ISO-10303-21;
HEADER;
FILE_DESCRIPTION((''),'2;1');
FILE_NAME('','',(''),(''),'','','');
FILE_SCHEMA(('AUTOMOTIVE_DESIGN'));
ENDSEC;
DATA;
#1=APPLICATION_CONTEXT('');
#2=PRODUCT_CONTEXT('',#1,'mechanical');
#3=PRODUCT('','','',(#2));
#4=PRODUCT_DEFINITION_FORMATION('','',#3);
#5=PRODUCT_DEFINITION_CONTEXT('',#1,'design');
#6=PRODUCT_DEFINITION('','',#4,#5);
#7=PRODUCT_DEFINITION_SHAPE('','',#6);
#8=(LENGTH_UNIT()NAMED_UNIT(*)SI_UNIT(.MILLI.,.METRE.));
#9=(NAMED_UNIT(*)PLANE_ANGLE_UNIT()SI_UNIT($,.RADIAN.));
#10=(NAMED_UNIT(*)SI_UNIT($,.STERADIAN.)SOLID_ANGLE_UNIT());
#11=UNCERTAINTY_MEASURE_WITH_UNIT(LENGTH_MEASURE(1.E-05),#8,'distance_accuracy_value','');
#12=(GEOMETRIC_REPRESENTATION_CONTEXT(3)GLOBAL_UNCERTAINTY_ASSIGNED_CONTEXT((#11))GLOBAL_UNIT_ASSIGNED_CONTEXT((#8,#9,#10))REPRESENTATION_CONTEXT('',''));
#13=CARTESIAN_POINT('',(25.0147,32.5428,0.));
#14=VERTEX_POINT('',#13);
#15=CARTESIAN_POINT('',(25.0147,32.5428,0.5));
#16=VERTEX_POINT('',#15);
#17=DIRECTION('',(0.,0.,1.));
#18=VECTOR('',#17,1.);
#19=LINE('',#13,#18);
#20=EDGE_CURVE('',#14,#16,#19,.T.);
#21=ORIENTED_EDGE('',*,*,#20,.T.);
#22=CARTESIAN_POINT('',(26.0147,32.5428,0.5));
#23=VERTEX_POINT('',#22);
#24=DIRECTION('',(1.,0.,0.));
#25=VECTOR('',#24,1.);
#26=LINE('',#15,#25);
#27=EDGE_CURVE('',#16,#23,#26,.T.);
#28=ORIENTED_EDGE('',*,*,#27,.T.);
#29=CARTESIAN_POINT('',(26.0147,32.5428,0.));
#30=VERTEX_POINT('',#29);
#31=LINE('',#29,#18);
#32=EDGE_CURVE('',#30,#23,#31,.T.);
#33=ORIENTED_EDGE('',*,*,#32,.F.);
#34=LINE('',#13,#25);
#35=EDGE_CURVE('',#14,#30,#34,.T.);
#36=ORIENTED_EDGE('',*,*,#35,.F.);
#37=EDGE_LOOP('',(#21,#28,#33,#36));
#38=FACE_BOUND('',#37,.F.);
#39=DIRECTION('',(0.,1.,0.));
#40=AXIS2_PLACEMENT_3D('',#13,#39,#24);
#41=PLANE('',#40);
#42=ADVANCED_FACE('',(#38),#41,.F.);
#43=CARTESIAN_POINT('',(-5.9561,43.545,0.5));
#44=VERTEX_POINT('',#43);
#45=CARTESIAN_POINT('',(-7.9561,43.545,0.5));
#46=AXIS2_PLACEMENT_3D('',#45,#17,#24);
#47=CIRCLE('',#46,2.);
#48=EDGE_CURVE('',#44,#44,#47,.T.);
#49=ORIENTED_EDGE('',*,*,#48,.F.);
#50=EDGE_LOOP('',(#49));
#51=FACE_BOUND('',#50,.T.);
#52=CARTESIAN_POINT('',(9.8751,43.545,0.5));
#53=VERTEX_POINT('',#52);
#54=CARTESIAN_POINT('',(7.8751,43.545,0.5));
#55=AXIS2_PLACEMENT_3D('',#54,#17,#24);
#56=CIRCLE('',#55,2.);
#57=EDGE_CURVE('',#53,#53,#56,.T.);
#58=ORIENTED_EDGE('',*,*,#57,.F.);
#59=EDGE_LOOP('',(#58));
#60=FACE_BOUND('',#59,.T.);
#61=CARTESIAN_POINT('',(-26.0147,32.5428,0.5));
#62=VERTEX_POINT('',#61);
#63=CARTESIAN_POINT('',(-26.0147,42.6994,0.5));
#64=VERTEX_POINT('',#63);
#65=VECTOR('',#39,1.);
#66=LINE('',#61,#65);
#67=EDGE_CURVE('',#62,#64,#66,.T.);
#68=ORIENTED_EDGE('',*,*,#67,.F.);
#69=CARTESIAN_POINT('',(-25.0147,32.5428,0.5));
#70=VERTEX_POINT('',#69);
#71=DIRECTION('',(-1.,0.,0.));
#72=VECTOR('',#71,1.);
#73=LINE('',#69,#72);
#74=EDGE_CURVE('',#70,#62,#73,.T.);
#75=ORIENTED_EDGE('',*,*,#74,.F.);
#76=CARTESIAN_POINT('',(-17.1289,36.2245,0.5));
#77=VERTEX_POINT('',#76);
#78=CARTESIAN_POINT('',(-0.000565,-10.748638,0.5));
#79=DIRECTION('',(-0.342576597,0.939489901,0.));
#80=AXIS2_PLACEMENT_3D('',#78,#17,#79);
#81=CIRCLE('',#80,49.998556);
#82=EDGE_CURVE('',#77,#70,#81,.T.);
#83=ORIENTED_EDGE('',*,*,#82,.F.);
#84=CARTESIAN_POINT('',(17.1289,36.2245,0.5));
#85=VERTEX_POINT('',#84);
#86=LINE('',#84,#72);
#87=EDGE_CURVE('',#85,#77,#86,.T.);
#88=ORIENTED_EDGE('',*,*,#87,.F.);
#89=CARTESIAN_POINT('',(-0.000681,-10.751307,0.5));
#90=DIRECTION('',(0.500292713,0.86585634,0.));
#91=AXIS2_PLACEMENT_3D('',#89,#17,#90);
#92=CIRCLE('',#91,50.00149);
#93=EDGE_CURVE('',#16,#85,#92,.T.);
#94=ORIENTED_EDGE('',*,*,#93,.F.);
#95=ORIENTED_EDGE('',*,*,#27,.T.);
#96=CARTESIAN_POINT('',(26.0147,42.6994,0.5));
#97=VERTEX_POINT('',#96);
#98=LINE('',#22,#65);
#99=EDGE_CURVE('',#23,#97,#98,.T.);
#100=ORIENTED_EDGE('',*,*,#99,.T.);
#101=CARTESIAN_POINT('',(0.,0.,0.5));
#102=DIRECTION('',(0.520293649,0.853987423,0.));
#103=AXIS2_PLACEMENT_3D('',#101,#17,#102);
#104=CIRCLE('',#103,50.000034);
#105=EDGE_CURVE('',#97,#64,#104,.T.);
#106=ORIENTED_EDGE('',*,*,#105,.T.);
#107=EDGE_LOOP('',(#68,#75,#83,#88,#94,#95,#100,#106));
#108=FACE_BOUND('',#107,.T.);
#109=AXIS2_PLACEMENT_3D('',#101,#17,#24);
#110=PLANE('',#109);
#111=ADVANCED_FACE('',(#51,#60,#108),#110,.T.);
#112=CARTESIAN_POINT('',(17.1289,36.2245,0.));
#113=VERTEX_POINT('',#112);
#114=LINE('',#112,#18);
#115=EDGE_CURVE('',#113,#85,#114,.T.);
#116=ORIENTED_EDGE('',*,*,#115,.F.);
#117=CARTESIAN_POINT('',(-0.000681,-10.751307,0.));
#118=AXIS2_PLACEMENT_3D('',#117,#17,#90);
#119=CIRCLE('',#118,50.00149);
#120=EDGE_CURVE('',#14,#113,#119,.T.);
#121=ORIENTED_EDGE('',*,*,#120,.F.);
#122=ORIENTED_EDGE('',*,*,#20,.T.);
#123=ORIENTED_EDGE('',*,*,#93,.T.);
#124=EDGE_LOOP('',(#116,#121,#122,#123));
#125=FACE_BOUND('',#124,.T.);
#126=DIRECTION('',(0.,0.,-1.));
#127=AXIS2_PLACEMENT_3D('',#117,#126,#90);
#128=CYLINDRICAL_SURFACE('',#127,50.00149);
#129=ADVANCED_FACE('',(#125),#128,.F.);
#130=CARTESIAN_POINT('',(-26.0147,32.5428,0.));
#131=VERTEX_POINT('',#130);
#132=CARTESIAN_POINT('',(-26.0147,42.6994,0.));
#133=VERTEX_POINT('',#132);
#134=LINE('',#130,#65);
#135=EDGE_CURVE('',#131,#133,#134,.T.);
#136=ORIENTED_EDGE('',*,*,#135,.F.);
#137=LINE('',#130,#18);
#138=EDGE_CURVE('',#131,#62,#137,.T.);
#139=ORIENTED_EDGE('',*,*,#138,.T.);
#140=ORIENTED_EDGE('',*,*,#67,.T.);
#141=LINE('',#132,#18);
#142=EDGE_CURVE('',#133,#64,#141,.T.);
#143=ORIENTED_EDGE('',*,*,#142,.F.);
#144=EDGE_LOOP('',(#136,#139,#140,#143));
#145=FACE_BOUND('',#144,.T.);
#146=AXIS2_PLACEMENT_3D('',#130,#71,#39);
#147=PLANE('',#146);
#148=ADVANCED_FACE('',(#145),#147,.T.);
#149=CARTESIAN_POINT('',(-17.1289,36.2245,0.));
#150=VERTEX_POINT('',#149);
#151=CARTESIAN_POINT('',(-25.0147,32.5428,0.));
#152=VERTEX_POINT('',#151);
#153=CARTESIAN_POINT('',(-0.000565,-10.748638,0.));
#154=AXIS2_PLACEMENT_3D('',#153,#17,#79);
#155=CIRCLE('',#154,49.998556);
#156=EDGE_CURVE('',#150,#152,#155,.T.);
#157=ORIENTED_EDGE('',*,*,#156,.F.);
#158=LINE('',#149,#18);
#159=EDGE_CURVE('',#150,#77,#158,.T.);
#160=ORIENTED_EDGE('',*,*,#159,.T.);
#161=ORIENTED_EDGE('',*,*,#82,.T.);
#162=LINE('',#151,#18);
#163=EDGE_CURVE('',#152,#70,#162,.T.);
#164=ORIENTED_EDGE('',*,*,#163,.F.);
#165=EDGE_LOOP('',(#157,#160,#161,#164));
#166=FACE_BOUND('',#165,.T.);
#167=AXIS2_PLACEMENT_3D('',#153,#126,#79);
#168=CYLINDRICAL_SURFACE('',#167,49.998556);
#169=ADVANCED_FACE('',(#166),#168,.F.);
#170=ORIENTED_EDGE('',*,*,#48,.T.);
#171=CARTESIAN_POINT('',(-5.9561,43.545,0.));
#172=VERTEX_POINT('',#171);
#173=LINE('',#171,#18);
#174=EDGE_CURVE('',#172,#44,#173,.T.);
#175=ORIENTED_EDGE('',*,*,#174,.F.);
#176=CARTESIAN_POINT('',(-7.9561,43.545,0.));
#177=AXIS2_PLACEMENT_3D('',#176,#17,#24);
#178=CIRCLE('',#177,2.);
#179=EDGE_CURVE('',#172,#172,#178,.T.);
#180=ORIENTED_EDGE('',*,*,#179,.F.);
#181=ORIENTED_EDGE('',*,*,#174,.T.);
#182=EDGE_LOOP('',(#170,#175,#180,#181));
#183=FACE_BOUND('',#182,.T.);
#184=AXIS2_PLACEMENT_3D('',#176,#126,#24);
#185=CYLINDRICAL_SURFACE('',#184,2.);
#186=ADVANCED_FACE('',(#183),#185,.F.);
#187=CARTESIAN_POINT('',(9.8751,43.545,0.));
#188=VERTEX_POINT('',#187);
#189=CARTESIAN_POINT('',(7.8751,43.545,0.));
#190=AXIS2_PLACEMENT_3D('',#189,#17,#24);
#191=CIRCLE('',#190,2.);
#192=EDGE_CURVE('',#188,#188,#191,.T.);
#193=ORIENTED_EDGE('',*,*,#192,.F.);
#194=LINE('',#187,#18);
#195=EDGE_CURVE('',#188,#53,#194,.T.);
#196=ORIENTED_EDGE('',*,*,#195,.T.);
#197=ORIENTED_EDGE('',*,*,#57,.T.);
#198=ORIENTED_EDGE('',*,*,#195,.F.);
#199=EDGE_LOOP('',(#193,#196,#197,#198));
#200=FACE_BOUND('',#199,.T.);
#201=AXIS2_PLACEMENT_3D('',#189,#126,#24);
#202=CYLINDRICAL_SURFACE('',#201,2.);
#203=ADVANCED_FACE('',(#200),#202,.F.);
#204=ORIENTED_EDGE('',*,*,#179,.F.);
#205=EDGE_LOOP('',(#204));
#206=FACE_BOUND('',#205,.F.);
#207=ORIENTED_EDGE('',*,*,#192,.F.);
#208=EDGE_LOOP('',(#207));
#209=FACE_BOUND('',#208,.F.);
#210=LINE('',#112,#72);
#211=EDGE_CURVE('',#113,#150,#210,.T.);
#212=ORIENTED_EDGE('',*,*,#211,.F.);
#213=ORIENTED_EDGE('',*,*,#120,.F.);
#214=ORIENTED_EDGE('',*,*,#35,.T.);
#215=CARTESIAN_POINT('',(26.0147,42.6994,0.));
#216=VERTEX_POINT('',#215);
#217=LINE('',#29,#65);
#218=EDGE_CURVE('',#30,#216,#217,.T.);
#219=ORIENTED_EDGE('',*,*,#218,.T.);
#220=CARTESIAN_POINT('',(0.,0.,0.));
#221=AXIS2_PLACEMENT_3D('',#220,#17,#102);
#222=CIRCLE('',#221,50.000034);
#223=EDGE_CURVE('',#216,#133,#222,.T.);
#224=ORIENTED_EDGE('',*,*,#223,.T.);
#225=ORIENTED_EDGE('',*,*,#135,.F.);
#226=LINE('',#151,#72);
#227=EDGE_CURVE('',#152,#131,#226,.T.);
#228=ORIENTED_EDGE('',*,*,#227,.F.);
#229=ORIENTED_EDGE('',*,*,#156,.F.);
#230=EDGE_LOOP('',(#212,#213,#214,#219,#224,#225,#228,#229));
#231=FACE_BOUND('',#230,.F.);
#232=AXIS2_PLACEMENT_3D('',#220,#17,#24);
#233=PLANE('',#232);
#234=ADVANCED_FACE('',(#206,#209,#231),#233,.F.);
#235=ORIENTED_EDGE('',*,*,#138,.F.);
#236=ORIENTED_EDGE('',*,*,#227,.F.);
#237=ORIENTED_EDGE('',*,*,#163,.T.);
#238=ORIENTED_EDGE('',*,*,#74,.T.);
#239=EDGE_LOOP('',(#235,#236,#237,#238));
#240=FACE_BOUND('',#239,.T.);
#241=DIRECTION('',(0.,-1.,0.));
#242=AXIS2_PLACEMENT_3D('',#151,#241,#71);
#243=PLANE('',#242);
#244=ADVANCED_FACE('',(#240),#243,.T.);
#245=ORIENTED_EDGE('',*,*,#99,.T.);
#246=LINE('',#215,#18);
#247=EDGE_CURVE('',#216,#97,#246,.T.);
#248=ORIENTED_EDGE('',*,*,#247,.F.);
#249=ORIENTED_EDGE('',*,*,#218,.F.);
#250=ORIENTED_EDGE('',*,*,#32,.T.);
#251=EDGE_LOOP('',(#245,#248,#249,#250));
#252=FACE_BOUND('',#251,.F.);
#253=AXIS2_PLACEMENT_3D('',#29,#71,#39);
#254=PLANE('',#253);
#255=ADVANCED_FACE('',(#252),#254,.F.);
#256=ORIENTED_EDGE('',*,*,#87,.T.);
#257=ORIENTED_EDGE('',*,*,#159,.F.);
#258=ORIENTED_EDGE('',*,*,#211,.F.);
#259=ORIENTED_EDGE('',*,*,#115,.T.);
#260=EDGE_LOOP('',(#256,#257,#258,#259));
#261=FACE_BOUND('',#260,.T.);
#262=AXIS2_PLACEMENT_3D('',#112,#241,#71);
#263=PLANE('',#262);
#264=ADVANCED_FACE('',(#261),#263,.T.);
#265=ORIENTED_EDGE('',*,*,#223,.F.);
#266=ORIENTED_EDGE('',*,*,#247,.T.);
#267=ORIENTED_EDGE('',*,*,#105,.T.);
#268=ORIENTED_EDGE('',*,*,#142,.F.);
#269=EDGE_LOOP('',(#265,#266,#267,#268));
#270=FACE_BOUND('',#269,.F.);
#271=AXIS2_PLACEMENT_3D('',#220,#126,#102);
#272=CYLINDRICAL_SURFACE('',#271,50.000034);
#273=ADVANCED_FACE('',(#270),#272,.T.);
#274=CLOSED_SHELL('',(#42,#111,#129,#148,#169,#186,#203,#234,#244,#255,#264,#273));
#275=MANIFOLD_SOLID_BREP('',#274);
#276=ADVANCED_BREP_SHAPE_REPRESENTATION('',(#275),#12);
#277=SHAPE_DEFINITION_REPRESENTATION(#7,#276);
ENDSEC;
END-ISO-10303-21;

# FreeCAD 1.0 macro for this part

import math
import FreeCAD as App
import Part
import Sketcher
from FreeCAD import Vector
Q = App.Units.Quantity

doc = App.newDocument("Part")
body = doc.addObject("PartDesign::Body", "Body")

# Sketch on XY plane
sketch1 = body.newObject("Sketcher::SketchObject", "Sketch")
sketch1.AttachmentSupport = (doc.getObject("XY_Plane"), [""])
sketch1.MapMode = "FlatFace"
sketch1.addGeometry([
    Part.ArcOfCircle(Part.Circle(Vector(0, 0, 0), Vector(0, 0, 1), 50), math.radians(59), math.radians(121)),  # 0
    Part.LineSegment(Vector(-26, 42.7, 0), Vector(-26, 32.5, 0)),  # 1
    Part.LineSegment(Vector(-26, 32.5, 0), Vector(-25, 32.5, 0)),  # 2
    Part.ArcOfCircle(Part.Circle(Vector(0, -10.7, 0), Vector(0, 0, 1), 50), math.radians(110.03), math.radians(120.02)),  # 3
    Part.LineSegment(Vector(-17.1, 36.2, 0), Vector(17.1, 36.2, 0)),  # 4
    Part.ArcOfCircle(Part.Circle(Vector(0, -10.8, 0), Vector(0, 0, 1), 50), math.radians(59.98), math.radians(69.97)),  # 5
    Part.LineSegment(Vector(25, 32.5, 0), Vector(26, 32.5, 0)),  # 6
    Part.LineSegment(Vector(26, 32.5, 0), Vector(26, 42.7, 0)),  # 7
    Part.Circle(Vector(-8, 43.5, 0), Vector(0, 0, 1), 2),  # 8
    Part.Circle(Vector(7.9, 43.5, 0), Vector(0, 0, 1), 2),  # 9
], False)
sketch1.addConstraint([
    Sketcher.Constraint("Coincident", 0, 2, 1, 1),
    Sketcher.Constraint("Coincident", 1, 2, 2, 1),
    Sketcher.Constraint("Coincident", 2, 2, 3, 2),
    Sketcher.Constraint("Coincident", 3, 1, 4, 1),
    Sketcher.Constraint("Coincident", 4, 2, 5, 2),
    Sketcher.Constraint("Coincident", 5, 1, 6, 1),
    Sketcher.Constraint("Coincident", 6, 2, 7, 1),
    Sketcher.Constraint("Coincident", 7, 2, 0, 1),
    Sketcher.Constraint("Vertical", 1),
    Sketcher.Constraint("Horizontal", 2),
    Sketcher.Constraint("Horizontal", 4),
    Sketcher.Constraint("Horizontal", 6),
    Sketcher.Constraint("Vertical", 7),
    Sketcher.Constraint("Coincident", 0, 3, -1, 1),
    Sketcher.Constraint("Equal", 8, 9),
    Sketcher.Constraint("Symmetric", 2, 2, 5, 1, -2),
    Sketcher.Constraint("Horizontal", 8, 3, 9, 3),
    Sketcher.Constraint("Horizontal", 0, 2, 7, 2),
    Sketcher.Constraint("Vertical", 3, 3, 5, 3),
    Sketcher.Constraint("Diameter", 8, Q("4 mm")),
    Sketcher.Constraint("Radius", 0, Q("50 mm")),
    Sketcher.Constraint("DistanceX", 2, 1, 2, 2, Q("1 mm")),
    Sketcher.Constraint("Radius", 3, Q("49.9986 mm")),
    Sketcher.Constraint("Radius", 5, Q("50.0015 mm")),
    Sketcher.Constraint("DistanceX", 4, 1, 4, 2, Q("34.2578 mm")),
    Sketcher.Constraint("DistanceY", 1, 2, 1, 1, Q("10.1566 mm")),
    Sketcher.Constraint("DistanceX", 8, 3, -1, 1, Q("7.956 mm")),
    Sketcher.Constraint("DistanceY", -1, 1, 8, 3, Q("43.545 mm")),
    Sketcher.Constraint("DistanceX", -1, 1, 9, 3, Q("7.875 mm")),
    Sketcher.Constraint("DistanceX", 3, 1, -1, 1, Q("17.129 mm")),
    Sketcher.Constraint("DistanceY", 3, 3, 0, 2, Q("53.448 mm")),
])
pad1 = body.newObject("PartDesign::Pad", "Pad")
pad1.Profile = sketch1
pad1.Length = 0.5

doc.recompute()
